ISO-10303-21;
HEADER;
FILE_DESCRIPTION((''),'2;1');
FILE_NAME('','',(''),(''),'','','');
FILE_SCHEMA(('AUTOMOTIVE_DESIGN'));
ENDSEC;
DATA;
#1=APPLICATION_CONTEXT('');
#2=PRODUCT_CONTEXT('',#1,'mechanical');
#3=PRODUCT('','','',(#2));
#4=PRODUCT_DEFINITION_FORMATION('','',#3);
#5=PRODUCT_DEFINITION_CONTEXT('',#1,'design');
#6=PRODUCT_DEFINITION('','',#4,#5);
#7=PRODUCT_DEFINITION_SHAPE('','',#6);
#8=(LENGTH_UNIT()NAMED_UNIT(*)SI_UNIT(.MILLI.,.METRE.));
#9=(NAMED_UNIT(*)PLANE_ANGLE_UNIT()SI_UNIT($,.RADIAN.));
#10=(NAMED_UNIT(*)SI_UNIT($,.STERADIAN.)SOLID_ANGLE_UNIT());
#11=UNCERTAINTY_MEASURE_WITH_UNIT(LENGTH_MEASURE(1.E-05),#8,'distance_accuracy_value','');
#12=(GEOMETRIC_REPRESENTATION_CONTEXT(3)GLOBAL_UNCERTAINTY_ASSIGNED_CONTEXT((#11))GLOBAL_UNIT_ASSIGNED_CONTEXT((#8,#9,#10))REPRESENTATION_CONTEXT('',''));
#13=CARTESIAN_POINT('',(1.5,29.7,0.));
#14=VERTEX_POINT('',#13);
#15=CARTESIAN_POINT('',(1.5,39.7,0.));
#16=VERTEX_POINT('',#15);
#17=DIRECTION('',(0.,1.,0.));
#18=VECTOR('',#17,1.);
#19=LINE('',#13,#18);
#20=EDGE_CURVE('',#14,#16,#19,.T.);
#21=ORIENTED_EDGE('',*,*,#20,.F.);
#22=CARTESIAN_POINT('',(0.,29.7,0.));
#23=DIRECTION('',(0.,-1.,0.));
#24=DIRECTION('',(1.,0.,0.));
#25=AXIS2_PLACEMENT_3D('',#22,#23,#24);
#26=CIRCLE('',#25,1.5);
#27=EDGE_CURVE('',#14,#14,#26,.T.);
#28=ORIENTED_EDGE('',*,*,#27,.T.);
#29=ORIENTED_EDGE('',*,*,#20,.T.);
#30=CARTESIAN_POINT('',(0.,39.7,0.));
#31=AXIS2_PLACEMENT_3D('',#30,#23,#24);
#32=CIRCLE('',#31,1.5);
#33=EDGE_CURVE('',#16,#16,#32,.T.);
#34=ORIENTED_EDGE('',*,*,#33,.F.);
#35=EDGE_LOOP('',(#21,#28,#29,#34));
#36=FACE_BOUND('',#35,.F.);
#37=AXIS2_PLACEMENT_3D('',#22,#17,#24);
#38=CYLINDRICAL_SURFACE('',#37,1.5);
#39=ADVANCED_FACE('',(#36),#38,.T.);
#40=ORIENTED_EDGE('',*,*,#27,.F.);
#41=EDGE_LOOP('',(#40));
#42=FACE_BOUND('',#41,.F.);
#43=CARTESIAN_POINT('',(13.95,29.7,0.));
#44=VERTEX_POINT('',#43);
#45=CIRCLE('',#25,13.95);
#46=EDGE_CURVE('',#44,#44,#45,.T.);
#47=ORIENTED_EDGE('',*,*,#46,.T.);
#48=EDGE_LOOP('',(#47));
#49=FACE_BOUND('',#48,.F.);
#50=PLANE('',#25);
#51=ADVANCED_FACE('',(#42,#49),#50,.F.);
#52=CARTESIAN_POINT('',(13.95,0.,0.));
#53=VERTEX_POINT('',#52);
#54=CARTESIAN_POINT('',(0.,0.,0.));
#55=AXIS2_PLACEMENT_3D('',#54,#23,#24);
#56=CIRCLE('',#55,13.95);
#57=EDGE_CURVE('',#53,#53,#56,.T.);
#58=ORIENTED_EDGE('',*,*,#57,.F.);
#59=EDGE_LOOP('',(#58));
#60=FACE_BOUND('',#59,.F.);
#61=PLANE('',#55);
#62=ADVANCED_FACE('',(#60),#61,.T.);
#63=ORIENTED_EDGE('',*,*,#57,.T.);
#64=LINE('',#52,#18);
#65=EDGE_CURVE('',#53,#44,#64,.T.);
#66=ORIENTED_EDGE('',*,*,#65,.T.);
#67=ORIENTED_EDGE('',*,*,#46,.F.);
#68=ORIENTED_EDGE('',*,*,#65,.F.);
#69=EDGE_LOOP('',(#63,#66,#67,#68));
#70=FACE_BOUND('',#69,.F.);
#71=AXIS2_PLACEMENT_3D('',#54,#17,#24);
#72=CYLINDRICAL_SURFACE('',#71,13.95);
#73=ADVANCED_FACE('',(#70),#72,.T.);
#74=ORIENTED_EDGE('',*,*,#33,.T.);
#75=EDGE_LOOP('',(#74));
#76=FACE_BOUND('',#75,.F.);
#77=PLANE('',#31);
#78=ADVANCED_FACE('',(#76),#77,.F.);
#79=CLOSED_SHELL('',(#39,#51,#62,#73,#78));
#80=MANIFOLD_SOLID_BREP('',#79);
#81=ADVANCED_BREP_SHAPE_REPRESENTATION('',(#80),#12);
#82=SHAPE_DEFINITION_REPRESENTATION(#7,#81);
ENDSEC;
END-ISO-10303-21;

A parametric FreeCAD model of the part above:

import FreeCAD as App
import Part
import Sketcher

V = App.Vector
Q = App.Units.Quantity

doc = App.newDocument("Part")
params = doc.addObject("Spreadsheet::Sheet", "Params")
for row, (alias, value) in enumerate([
    ("sketch1_height", "10 mm"),
    ("sketch1_width", "1.5 mm"),
    ("sketch1_height2", "39.7 mm"),
    ("sketch1_width2", "13.95 mm"),
    ("revolution_angle", "360 deg"),
], start=1):
    params.set(f"A{row}", alias)
    params.set(f"B{row}", "=" + value)
    params.setAlias(f"B{row}", alias)

body = doc.addObject("PartDesign::Body", "Body")

sketch1 = body.newObject("Sketcher::SketchObject", "Sketch")
sketch1.AttachmentSupport = (doc.getObject("XY_Plane"), [""])
sketch1.MapMode = "FlatFace"
sketch1.addGeometry([
    Part.LineSegment(V(0, 39.7, 0), V(0, 0, 0)),
    Part.LineSegment(V(0, 0, 0), V(13.95, 0, 0)),
    Part.LineSegment(V(13.95, 0, 0), V(13.95, 29.7, 0)),
    Part.LineSegment(V(13.95, 29.7, 0), V(1.5, 29.7, 0)),
    Part.LineSegment(V(1.5, 29.7, 0), V(1.5, 39.7, 0)),
    Part.LineSegment(V(1.5, 39.7, 0), V(0, 39.7, 0)),
], False)
sketch1.addConstraint([
    Sketcher.Constraint("Coincident", 0, 2, 1, 1),
    Sketcher.Constraint("Coincident", 1, 2, 2, 1),
    Sketcher.Constraint("Coincident", 2, 2, 3, 1),
    Sketcher.Constraint("Coincident", 3, 2, 4, 1),
    Sketcher.Constraint("Coincident", 4, 2, 5, 1),
    Sketcher.Constraint("Coincident", 5, 2, 0, 1),
    Sketcher.Constraint("Vertical", 0),
    Sketcher.Constraint("Horizontal", 1),
    Sketcher.Constraint("Vertical", 2),
    Sketcher.Constraint("Horizontal", 3),
    Sketcher.Constraint("Vertical", 4),
    Sketcher.Constraint("Horizontal", 5),
    Sketcher.Constraint("Coincident", 0, 2, -1, 1),
    Sketcher.Constraint("DistanceY", 4, 1, 4, 2, Q("10 mm")),
    Sketcher.Constraint("DistanceX", 5, 2, 5, 1, Q("1.5 mm")),
    Sketcher.Constraint("DistanceY", 0, 2, 0, 1, Q("39.7 mm")),
    Sketcher.Constraint("DistanceX", 1, 1, 1, 2, Q("13.95 mm")),
])
sketch1.setExpression("Constraints[13]", "Params.sketch1_height")
sketch1.setExpression("Constraints[14]", "Params.sketch1_width")
sketch1.setExpression("Constraints[15]", "Params.sketch1_height2")
sketch1.setExpression("Constraints[16]", "Params.sketch1_width2")
revolution = body.newObject("PartDesign::Revolution", "Revolution")
revolution.Profile = sketch1
revolution.ReferenceAxis = (sketch1, ["V_Axis"])
revolution.setExpression("Angle", "Params.revolution_angle")

doc.recompute()
